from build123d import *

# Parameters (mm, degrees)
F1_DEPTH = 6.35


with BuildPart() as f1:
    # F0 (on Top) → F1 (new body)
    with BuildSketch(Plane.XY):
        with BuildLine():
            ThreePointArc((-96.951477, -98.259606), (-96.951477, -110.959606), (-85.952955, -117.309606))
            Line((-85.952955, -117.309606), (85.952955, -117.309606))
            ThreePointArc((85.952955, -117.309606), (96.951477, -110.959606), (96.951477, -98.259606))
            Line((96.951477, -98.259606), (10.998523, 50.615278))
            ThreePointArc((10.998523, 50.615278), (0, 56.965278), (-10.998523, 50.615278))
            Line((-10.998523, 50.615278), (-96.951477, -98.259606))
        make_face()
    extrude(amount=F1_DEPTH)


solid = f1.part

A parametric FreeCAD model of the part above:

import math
import FreeCAD as App
import Part
import Sketcher
Q = App.Units.Quantity

doc = App.newDocument("Part")
body = doc.addObject("PartDesign::Body", "Body")

sketch1 = body.newObject("Sketcher::SketchObject", "Sketch")
sketch1.AttachmentSupport = (doc.getObject("XY_Plane"), [""])
sketch1.MapMode = "FlatFace"
sketch1.addGeometry(Part.ArcOfCircle(Part.Circle(App.Vector(-85.952954, -104.609606, 0), App.Vector(0, 0, 1), 12.7), math.radians(150), math.radians(269.999997)), False)
sketch1.addGeometry(Part.LineSegment(App.Vector(-85.952955, -117.309606, 0), App.Vector(85.952955, -117.309606, 0)), False)
sketch1.addGeometry(Part.ArcOfCircle(Part.Circle(App.Vector(85.952954, -104.609606, 0), App.Vector(0, 0, 1), 12.7), math.radians(-89.999997), math.radians(30)), False)
sketch1.addGeometry(Part.LineSegment(App.Vector(96.951477, -98.259606, 0), App.Vector(10.998523, 50.615278, 0)), False)
sketch1.addGeometry(Part.ArcOfCircle(Part.Circle(App.Vector(0, 44.265277, 0), App.Vector(0, 0, 1), 12.700001), math.radians(30.000002), math.radians(149.999998)), False)
sketch1.addGeometry(Part.LineSegment(App.Vector(-10.998523, 50.615278, 0), App.Vector(-96.951477, -98.259606, 0)), False)
sketch1.addConstraint(Sketcher.Constraint("Tangent", 0, 2, 1, 1))
sketch1.addConstraint(Sketcher.Constraint("Tangent", 1, 2, 2, 1))
sketch1.addConstraint(Sketcher.Constraint("Tangent", 2, 2, 3, 1))
sketch1.addConstraint(Sketcher.Constraint("Tangent", 3, 2, 4, 1))
sketch1.addConstraint(Sketcher.Constraint("Tangent", 4, 2, 5, 1))
sketch1.addConstraint(Sketcher.Constraint("Tangent", 5, 2, 0, 1))
sketch1.addConstraint(Sketcher.Constraint("Horizontal", 1))
sketch1.addConstraint(Sketcher.Constraint("Equal", 0, 2))
sketch1.addConstraint(Sketcher.Constraint("Equal", 2, 4))
sketch1.addConstraint(Sketcher.Constraint("Symmetric", 3, 2, 4, 2, -2))
sketch1.addConstraint(Sketcher.Constraint("Radius", 0, Q("0.5 in")))
sketch1.addConstraint(Sketcher.Constraint("Angle", 3, Q("120 deg")))
sketch1.addConstraint(Sketcher.Constraint("DistanceX", 1, 1, 1, 2, 171.90591))
sketch1.addConstraint(Sketcher.Constraint("DistanceY", -1, 1, 3, 2, 50.615278))
pad1 = body.newObject("PartDesign::Pad", "Pad")
pad1.Profile = sketch1
pad1.Length = Q("0.25 in")

doc.recompute()
